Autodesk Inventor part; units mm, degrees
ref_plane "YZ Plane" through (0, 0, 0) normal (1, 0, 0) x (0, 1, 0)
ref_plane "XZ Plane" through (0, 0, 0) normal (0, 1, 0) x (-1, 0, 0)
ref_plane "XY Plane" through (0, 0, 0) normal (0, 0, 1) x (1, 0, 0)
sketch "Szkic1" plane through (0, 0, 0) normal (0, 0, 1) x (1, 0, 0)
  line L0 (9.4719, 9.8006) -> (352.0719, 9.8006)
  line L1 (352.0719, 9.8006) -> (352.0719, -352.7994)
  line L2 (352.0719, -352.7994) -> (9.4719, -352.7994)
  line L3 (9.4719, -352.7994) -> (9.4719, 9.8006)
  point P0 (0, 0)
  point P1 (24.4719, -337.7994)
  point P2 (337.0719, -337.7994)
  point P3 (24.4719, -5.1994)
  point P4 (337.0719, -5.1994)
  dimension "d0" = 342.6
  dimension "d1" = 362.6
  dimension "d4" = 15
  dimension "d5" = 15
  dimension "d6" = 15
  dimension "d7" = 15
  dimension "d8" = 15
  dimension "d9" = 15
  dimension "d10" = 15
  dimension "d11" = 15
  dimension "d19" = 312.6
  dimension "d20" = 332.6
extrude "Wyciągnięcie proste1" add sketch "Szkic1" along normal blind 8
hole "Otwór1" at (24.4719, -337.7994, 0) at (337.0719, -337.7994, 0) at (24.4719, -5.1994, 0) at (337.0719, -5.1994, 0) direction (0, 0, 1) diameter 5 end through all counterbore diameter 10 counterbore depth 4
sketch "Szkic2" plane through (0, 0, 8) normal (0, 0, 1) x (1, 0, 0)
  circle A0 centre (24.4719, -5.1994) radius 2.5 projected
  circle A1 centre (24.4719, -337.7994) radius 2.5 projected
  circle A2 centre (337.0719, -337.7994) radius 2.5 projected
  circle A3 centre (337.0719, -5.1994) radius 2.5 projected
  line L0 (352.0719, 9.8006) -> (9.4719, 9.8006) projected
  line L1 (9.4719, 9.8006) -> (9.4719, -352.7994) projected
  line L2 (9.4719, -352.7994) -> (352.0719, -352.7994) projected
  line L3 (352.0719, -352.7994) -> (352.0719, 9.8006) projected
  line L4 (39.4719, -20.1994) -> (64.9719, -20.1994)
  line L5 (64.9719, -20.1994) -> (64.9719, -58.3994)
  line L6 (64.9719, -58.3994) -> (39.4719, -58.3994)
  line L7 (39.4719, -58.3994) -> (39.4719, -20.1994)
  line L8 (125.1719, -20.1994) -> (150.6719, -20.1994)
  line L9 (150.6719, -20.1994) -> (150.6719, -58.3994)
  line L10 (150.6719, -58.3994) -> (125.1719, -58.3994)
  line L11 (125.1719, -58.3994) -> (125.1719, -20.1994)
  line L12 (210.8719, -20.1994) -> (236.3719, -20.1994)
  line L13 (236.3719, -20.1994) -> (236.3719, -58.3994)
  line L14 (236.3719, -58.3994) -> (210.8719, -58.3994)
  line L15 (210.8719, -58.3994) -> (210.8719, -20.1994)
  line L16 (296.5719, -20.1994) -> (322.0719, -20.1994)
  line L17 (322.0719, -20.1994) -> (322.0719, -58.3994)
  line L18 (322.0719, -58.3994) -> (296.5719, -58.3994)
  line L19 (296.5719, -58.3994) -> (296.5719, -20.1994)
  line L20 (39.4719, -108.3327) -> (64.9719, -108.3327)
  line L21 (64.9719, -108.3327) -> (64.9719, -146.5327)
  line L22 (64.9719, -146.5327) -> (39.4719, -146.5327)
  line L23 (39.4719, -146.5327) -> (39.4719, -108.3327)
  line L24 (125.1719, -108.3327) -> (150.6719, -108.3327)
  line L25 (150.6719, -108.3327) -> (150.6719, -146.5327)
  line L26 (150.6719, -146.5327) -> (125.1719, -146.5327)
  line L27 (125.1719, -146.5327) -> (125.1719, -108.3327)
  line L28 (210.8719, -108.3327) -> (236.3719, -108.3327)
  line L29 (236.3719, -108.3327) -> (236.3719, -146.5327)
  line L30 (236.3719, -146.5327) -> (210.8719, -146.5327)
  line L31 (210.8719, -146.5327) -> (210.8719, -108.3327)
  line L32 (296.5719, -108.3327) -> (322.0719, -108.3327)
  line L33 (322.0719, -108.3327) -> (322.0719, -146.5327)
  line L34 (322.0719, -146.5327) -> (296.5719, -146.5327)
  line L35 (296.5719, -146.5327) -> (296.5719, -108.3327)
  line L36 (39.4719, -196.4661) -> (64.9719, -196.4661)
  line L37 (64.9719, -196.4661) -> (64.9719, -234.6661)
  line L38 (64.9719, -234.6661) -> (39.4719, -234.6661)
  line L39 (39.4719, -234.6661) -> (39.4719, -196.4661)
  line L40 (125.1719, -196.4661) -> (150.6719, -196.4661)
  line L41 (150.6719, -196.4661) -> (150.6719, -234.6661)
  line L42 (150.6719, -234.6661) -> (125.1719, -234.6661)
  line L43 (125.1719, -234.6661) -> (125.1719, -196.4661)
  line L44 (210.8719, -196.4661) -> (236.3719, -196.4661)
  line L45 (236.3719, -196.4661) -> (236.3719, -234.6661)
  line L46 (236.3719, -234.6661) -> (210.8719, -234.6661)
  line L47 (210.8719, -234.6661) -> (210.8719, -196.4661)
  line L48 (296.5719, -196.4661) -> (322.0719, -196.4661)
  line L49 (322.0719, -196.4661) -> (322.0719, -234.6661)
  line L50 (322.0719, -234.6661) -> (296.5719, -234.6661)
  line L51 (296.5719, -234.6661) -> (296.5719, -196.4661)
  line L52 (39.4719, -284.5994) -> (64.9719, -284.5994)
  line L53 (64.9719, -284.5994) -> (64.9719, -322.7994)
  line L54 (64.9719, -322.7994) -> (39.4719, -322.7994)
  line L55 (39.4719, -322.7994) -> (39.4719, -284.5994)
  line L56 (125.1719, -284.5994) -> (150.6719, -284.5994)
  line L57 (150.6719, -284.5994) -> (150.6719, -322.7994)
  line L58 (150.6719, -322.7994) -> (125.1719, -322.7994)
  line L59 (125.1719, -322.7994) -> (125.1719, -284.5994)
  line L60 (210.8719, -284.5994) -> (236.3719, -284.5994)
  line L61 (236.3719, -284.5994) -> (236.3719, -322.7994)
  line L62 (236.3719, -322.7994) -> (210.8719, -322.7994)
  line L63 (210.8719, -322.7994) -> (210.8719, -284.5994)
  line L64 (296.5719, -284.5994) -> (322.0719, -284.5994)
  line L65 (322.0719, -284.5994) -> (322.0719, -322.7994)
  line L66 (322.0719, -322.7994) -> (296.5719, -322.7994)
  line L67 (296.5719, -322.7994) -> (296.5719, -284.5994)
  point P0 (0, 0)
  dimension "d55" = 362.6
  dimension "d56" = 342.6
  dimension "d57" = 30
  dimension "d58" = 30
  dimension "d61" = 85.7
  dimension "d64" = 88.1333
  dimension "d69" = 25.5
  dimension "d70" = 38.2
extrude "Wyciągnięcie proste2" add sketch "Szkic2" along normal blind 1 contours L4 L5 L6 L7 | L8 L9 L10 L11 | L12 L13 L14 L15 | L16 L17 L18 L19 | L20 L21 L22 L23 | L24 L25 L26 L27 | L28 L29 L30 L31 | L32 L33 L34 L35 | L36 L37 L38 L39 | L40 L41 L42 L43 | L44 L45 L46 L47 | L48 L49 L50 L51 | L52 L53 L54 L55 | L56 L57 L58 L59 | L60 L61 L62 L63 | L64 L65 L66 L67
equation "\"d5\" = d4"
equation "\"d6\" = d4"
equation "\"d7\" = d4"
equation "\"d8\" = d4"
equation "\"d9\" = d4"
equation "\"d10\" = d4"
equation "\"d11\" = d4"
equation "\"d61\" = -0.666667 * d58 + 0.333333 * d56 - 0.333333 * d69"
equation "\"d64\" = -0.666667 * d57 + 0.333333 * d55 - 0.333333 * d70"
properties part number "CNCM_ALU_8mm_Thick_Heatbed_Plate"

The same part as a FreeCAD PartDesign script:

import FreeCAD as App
import Part
import Sketcher
from FreeCAD import Vector
Q = App.Units.Quantity

doc = App.newDocument("Part")
body = doc.addObject("PartDesign::Body", "Body")

# Sketch on XY plane
sketch1 = doc.addObject("Sketcher::SketchObject", "Sketch")
body.addObject(sketch1)
sketch1.AttachmentSupport = (doc.XY_Plane, [""])
sketch1.MapMode = "FlatFace"
sketch1.addGeometry([
    Part.LineSegment(Vector(352.0719, 9.8006, 0), Vector(9.4719, 9.8006, 0)),
    Part.LineSegment(Vector(9.4719, 9.8006, 0), Vector(9.4719, -352.7994, 0)),
    Part.LineSegment(Vector(9.4719, -352.7994, 0), Vector(352.0719, -352.7994, 0)),
    Part.LineSegment(Vector(352.0719, -352.7994, 0), Vector(352.0719, 9.8006, 0)),
], False)
sketch1.addConstraint([
    Sketcher.Constraint("Coincident", 0, 2, 1, 1),
    Sketcher.Constraint("Coincident", 1, 2, 2, 1),
    Sketcher.Constraint("Coincident", 2, 2, 3, 1),
    Sketcher.Constraint("Coincident", 3, 2, 0, 1),
    Sketcher.Constraint("Horizontal", 0),
    Sketcher.Constraint("Vertical", 1),
    Sketcher.Constraint("Horizontal", 2),
    Sketcher.Constraint("Vertical", 3),
    Sketcher.Constraint("DistanceX", 0, 2, 0, 1, Q("342.6 mm")),
    Sketcher.Constraint("DistanceY", 1, 2, 1, 1, Q("362.6 mm")),
    Sketcher.Constraint("DistanceX", -1, 1, 0, 2, Q("9.472 mm")),
    Sketcher.Constraint("DistanceY", -1, 1, 0, 2, Q("9.8006 mm")),
])
pad1 = doc.addObject("PartDesign::Pad", "Pad")
body.addObject(pad1)
pad1.Profile = sketch1
pad1.Length = 8

# Sketch on XY plane
sketch2 = doc.addObject("Sketcher::SketchObject", "Sketch001")
body.addObject(sketch2)
sketch2.AttachmentSupport = (doc.XY_Plane, [""])
sketch2.MapMode = "FlatFace"
sketch2.addGeometry([
    Part.Circle(Vector(24.4719, -337.7994, 0), Vector(0, 0, 1), 2.5),
    Part.Circle(Vector(337.0719, -337.7994, 0), Vector(0, 0, 1), 2.5),
    Part.Circle(Vector(24.4719, -5.1994, 0), Vector(0, 0, 1), 2.5),
    Part.Circle(Vector(337.0719, -5.1994, 0), Vector(0, 0, 1), 2.5),
], False)
sketch2.addConstraint([
    Sketcher.Constraint("Equal", 0, 1),
    Sketcher.Constraint("Equal", 1, 2),
    Sketcher.Constraint("Equal", 2, 3),
    Sketcher.Constraint("Horizontal", 0, 3, 1, 3),
    Sketcher.Constraint("Horizontal", 2, 3, 3, 3),
    Sketcher.Constraint("Vertical", 0, 3, 2, 3),
    Sketcher.Constraint("Vertical", 1, 3, 3, 3),
    Sketcher.Constraint("Diameter", 0, Q("5 mm")),
    Sketcher.Constraint("DistanceX", 0, 3, 1, 3, Q("312.6 mm")),
    Sketcher.Constraint("DistanceY", 0, 3, 2, 3, Q("332.6 mm")),
    Sketcher.Constraint("DistanceX", -1, 1, 0, 3, Q("24.472 mm")),
    Sketcher.Constraint("DistanceY", 0, 3, -1, 1, Q("337.7994 mm")),
])
doc.recompute()
hole = doc.addObject("PartDesign::Hole", "Hole")
body.addObject(hole)
hole.Profile = sketch2
hole.ThreadType = "None"
hole.Diameter = 5
hole.DepthType = "ThroughAll"
hole.HoleCutType = "Counterbore"
hole.HoleCutDiameter = 10
hole.HoleCutDepth = 4
hole.Reversed = True

# Sketch on XY plane
sketch3 = doc.addObject("Sketcher::SketchObject", "Sketch002")
body.addObject(sketch3)
sketch3.AttachmentSupport = (doc.XY_Plane, [""])
sketch3.MapMode = "FlatFace"
sketch3.AttachmentOffset = App.Placement(Vector(0, 0, 8), App.Rotation())
sketch3.addGeometry([
    Part.LineSegment(Vector(64.9719, -20.1994, 0), Vector(39.4719, -20.1994, 0)),  # 0
    Part.LineSegment(Vector(39.4719, -20.1994, 0), Vector(39.4719, -58.3994, 0)),  # 1
    Part.LineSegment(Vector(39.4719, -58.3994, 0), Vector(64.9719, -58.3994, 0)),  # 2
    Part.LineSegment(Vector(64.9719, -58.3994, 0), Vector(64.9719, -20.1994, 0)),  # 3
    Part.LineSegment(Vector(150.6719, -20.1994, 0), Vector(125.1719, -20.1994, 0)),  # 4
    Part.LineSegment(Vector(125.1719, -20.1994, 0), Vector(125.1719, -58.3994, 0)),  # 5
    Part.LineSegment(Vector(125.1719, -58.3994, 0), Vector(150.6719, -58.3994, 0)),  # 6
    Part.LineSegment(Vector(150.6719, -58.3994, 0), Vector(150.6719, -20.1994, 0)),  # 7
    Part.LineSegment(Vector(236.3719, -20.1994, 0), Vector(210.8719, -20.1994, 0)),  # 8
    Part.LineSegment(Vector(210.8719, -20.1994, 0), Vector(210.8719, -58.3994, 0)),  # 9
    Part.LineSegment(Vector(210.8719, -58.3994, 0), Vector(236.3719, -58.3994, 0)),  # 10
    Part.LineSegment(Vector(236.3719, -58.3994, 0), Vector(236.3719, -20.1994, 0)),  # 11
    Part.LineSegment(Vector(322.0719, -20.1994, 0), Vector(296.5719, -20.1994, 0)),  # 12
    Part.LineSegment(Vector(296.5719, -20.1994, 0), Vector(296.5719, -58.3994, 0)),  # 13
    Part.LineSegment(Vector(296.5719, -58.3994, 0), Vector(322.0719, -58.3994, 0)),  # 14
    Part.LineSegment(Vector(322.0719, -58.3994, 0), Vector(322.0719, -20.1994, 0)),  # 15
    Part.LineSegment(Vector(64.9719, -108.3327, 0), Vector(39.4719, -108.3327, 0)),  # 16
    Part.LineSegment(Vector(39.4719, -108.3327, 0), Vector(39.4719, -146.5327, 0)),  # 17
    Part.LineSegment(Vector(39.4719, -146.5327, 0), Vector(64.9719, -146.5327, 0)),  # 18
    Part.LineSegment(Vector(64.9719, -146.5327, 0), Vector(64.9719, -108.3327, 0)),  # 19
    Part.LineSegment(Vector(150.6719, -108.3327, 0), Vector(125.1719, -108.3327, 0)),  # 20
    Part.LineSegment(Vector(125.1719, -108.3327, 0), Vector(125.1719, -146.5327, 0)),  # 21
    Part.LineSegment(Vector(125.1719, -146.5327, 0), Vector(150.6719, -146.5327, 0)),  # 22
    Part.LineSegment(Vector(150.6719, -146.5327, 0), Vector(150.6719, -108.3327, 0)),  # 23
    Part.LineSegment(Vector(236.3719, -108.3327, 0), Vector(210.8719, -108.3327, 0)),  # 24
    Part.LineSegment(Vector(210.8719, -108.3327, 0), Vector(210.8719, -146.5327, 0)),  # 25
    Part.LineSegment(Vector(210.8719, -146.5327, 0), Vector(236.3719, -146.5327, 0)),  # 26
    Part.LineSegment(Vector(236.3719, -146.5327, 0), Vector(236.3719, -108.3327, 0)),  # 27
    Part.LineSegment(Vector(322.0719, -108.3327, 0), Vector(296.5719, -108.3327, 0)),  # 28
    Part.LineSegment(Vector(296.5719, -108.3327, 0), Vector(296.5719, -146.5327, 0)),  # 29
    Part.LineSegment(Vector(296.5719, -146.5327, 0), Vector(322.0719, -146.5327, 0)),  # 30
    Part.LineSegment(Vector(322.0719, -146.5327, 0), Vector(322.0719, -108.3327, 0)),  # 31
    Part.LineSegment(Vector(64.9719, -196.4661, 0), Vector(39.4719, -196.4661, 0)),  # 32
    Part.LineSegment(Vector(39.4719, -196.4661, 0), Vector(39.4719, -234.6661, 0)),  # 33
    Part.LineSegment(Vector(39.4719, -234.6661, 0), Vector(64.9719, -234.6661, 0)),  # 34
    Part.LineSegment(Vector(64.9719, -234.6661, 0), Vector(64.9719, -196.4661, 0)),  # 35
    Part.LineSegment(Vector(150.6719, -196.4661, 0), Vector(125.1719, -196.4661, 0)),  # 36
    Part.LineSegment(Vector(125.1719, -196.4661, 0), Vector(125.1719, -234.6661, 0)),  # 37
    Part.LineSegment(Vector(125.1719, -234.6661, 0), Vector(150.6719, -234.6661, 0)),  # 38
    Part.LineSegment(Vector(150.6719, -234.6661, 0), Vector(150.6719, -196.4661, 0)),  # 39
    Part.LineSegment(Vector(236.3719, -196.4661, 0), Vector(210.8719, -196.4661, 0)),  # 40
    Part.LineSegment(Vector(210.8719, -196.4661, 0), Vector(210.8719, -234.6661, 0)),  # 41
    Part.LineSegment(Vector(210.8719, -234.6661, 0), Vector(236.3719, -234.6661, 0)),  # 42
    Part.LineSegment(Vector(236.3719, -234.6661, 0), Vector(236.3719, -196.4661, 0)),  # 43
    Part.LineSegment(Vector(322.0719, -196.4661, 0), Vector(296.5719, -196.4661, 0)),  # 44
    Part.LineSegment(Vector(296.5719, -196.4661, 0), Vector(296.5719, -234.6661, 0)),  # 45
    Part.LineSegment(Vector(296.5719, -234.6661, 0), Vector(322.0719, -234.6661, 0)),  # 46
    Part.LineSegment(Vector(322.0719, -234.6661, 0), Vector(322.0719, -196.4661, 0)),  # 47
    Part.LineSegment(Vector(64.9719, -284.5994, 0), Vector(39.4719, -284.5994, 0)),  # 48
    Part.LineSegment(Vector(39.4719, -284.5994, 0), Vector(39.4719, -322.7994, 0)),  # 49
    Part.LineSegment(Vector(39.4719, -322.7994, 0), Vector(64.9719, -322.7994, 0)),  # 50
    Part.LineSegment(Vector(64.9719, -322.7994, 0), Vector(64.9719, -284.5994, 0)),  # 51
    Part.LineSegment(Vector(150.6719, -284.5994, 0), Vector(125.1719, -284.5994, 0)),  # 52
    Part.LineSegment(Vector(125.1719, -284.5994, 0), Vector(125.1719, -322.7994, 0)),  # 53
    Part.LineSegment(Vector(125.1719, -322.7994, 0), Vector(150.6719, -322.7994, 0)),  # 54
    Part.LineSegment(Vector(150.6719, -322.7994, 0), Vector(150.6719, -284.5994, 0)),  # 55
    Part.LineSegment(Vector(236.3719, -284.5994, 0), Vector(210.8719, -284.5994, 0)),  # 56
    Part.LineSegment(Vector(210.8719, -284.5994, 0), Vector(210.8719, -322.7994, 0)),  # 57
    Part.LineSegment(Vector(210.8719, -322.7994, 0), Vector(236.3719, -322.7994, 0)),  # 58
    Part.LineSegment(Vector(236.3719, -322.7994, 0), Vector(236.3719, -284.5994, 0)),  # 59
    Part.LineSegment(Vector(322.0719, -284.5994, 0), Vector(296.5719, -284.5994, 0)),  # 60
    Part.LineSegment(Vector(296.5719, -284.5994, 0), Vector(296.5719, -322.7994, 0)),  # 61
    Part.LineSegment(Vector(296.5719, -322.7994, 0), Vector(322.0719, -322.7994, 0)),  # 62
    Part.LineSegment(Vector(322.0719, -322.7994, 0), Vector(322.0719, -284.5994, 0)),  # 63
], False)
sketch3.addConstraint([
    Sketcher.Constraint("Coincident", 0, 2, 1, 1),
    Sketcher.Constraint("Coincident", 1, 2, 2, 1),
    Sketcher.Constraint("Coincident", 2, 2, 3, 1),
    Sketcher.Constraint("Coincident", 3, 2, 0, 1),
    Sketcher.Constraint("Coincident", 4, 2, 5, 1),
    Sketcher.Constraint("Coincident", 5, 2, 6, 1),
    Sketcher.Constraint("Coincident", 6, 2, 7, 1),
    Sketcher.Constraint("Coincident", 7, 2, 4, 1),
    Sketcher.Constraint("Coincident", 8, 2, 9, 1),
    Sketcher.Constraint("Coincident", 9, 2, 10, 1),
    Sketcher.Constraint("Coincident", 10, 2, 11, 1),
    Sketcher.Constraint("Coincident", 11, 2, 8, 1),
    Sketcher.Constraint("Coincident", 12, 2, 13, 1),
    Sketcher.Constraint("Coincident", 13, 2, 14, 1),
    Sketcher.Constraint("Coincident", 14, 2, 15, 1),
    Sketcher.Constraint("Coincident", 15, 2, 12, 1),
    Sketcher.Constraint("Coincident", 16, 2, 17, 1),
    Sketcher.Constraint("Coincident", 17, 2, 18, 1),
    Sketcher.Constraint("Coincident", 18, 2, 19, 1),
    Sketcher.Constraint("Coincident", 19, 2, 16, 1),
    Sketcher.Constraint("Coincident", 20, 2, 21, 1),
    Sketcher.Constraint("Coincident", 21, 2, 22, 1),
    Sketcher.Constraint("Coincident", 22, 2, 23, 1),
    Sketcher.Constraint("Coincident", 23, 2, 20, 1),
    Sketcher.Constraint("Coincident", 24, 2, 25, 1),
    Sketcher.Constraint("Coincident", 25, 2, 26, 1),
    Sketcher.Constraint("Coincident", 26, 2, 27, 1),
    Sketcher.Constraint("Coincident", 27, 2, 24, 1),
    Sketcher.Constraint("Coincident", 28, 2, 29, 1),
    Sketcher.Constraint("Coincident", 29, 2, 30, 1),
    Sketcher.Constraint("Coincident", 30, 2, 31, 1),
    Sketcher.Constraint("Coincident", 31, 2, 28, 1),
    Sketcher.Constraint("Coincident", 32, 2, 33, 1),
    Sketcher.Constraint("Coincident", 33, 2, 34, 1),
    Sketcher.Constraint("Coincident", 34, 2, 35, 1),
    Sketcher.Constraint("Coincident", 35, 2, 32, 1),
    Sketcher.Constraint("Coincident", 36, 2, 37, 1),
    Sketcher.Constraint("Coincident", 37, 2, 38, 1),
    Sketcher.Constraint("Coincident", 38, 2, 39, 1),
    Sketcher.Constraint("Coincident", 39, 2, 36, 1),
    Sketcher.Constraint("Coincident", 40, 2, 41, 1),
    Sketcher.Constraint("Coincident", 41, 2, 42, 1),
    Sketcher.Constraint("Coincident", 42, 2, 43, 1),
    Sketcher.Constraint("Coincident", 43, 2, 40, 1),
    Sketcher.Constraint("Coincident", 44, 2, 45, 1),
    Sketcher.Constraint("Coincident", 45, 2, 46, 1),
    Sketcher.Constraint("Coincident", 46, 2, 47, 1),
    Sketcher.Constraint("Coincident", 47, 2, 44, 1),
    Sketcher.Constraint("Coincident", 48, 2, 49, 1),
    Sketcher.Constraint("Coincident", 49, 2, 50, 1),
    Sketcher.Constraint("Coincident", 50, 2, 51, 1),
    Sketcher.Constraint("Coincident", 51, 2, 48, 1),
    Sketcher.Constraint("Coincident", 52, 2, 53, 1),
    Sketcher.Constraint("Coincident", 53, 2, 54, 1),
    Sketcher.Constraint("Coincident", 54, 2, 55, 1),
    Sketcher.Constraint("Coincident", 55, 2, 52, 1),
    Sketcher.Constraint("Coincident", 56, 2, 57, 1),
    Sketcher.Constraint("Coincident", 57, 2, 58, 1),
    Sketcher.Constraint("Coincident", 58, 2, 59, 1),
    Sketcher.Constraint("Coincident", 59, 2, 56, 1),
    Sketcher.Constraint("Coincident", 60, 2, 61, 1),
    Sketcher.Constraint("Coincident", 61, 2, 62, 1),
    Sketcher.Constraint("Coincident", 62, 2, 63, 1),
    Sketcher.Constraint("Coincident", 63, 2, 60, 1),
    Sketcher.Constraint("Horizontal", 0),
    Sketcher.Constraint("Vertical", 1),
    Sketcher.Constraint("Horizontal", 2),
    Sketcher.Constraint("Vertical", 3),
    Sketcher.Constraint("Horizontal", 4),
    Sketcher.Constraint("Vertical", 5),
    Sketcher.Constraint("Horizontal", 6),
    Sketcher.Constraint("Vertical", 7),
    Sketcher.Constraint("Horizontal", 8),
    Sketcher.Constraint("Vertical", 9),
    Sketcher.Constraint("Horizontal", 10),
    Sketcher.Constraint("Vertical", 11),
    Sketcher.Constraint("Horizontal", 12),
    Sketcher.Constraint("Vertical", 13),
    Sketcher.Constraint("Horizontal", 14),
    Sketcher.Constraint("Vertical", 15),
    Sketcher.Constraint("Horizontal", 16),
    Sketcher.Constraint("Vertical", 17),
    Sketcher.Constraint("Horizontal", 18),
    Sketcher.Constraint("Vertical", 19),
    Sketcher.Constraint("Horizontal", 20),
    Sketcher.Constraint("Vertical", 21),
    Sketcher.Constraint("Horizontal", 22),
    Sketcher.Constraint("Vertical", 23),
    Sketcher.Constraint("Horizontal", 24),
    Sketcher.Constraint("Vertical", 25),
    Sketcher.Constraint("Horizontal", 26),
    Sketcher.Constraint("Vertical", 27),
    Sketcher.Constraint("Horizontal", 28),
    Sketcher.Constraint("Vertical", 29),
    Sketcher.Constraint("Horizontal", 30),
    Sketcher.Constraint("Vertical", 31),
    Sketcher.Constraint("Horizontal", 32),
    Sketcher.Constraint("Vertical", 33),
    Sketcher.Constraint("Horizontal", 34),
    Sketcher.Constraint("Vertical", 35),
    Sketcher.Constraint("Horizontal", 36),
    Sketcher.Constraint("Vertical", 37),
    Sketcher.Constraint("Horizontal", 38),
    Sketcher.Constraint("Vertical", 39),
    Sketcher.Constraint("Horizontal", 40),
    Sketcher.Constraint("Vertical", 41),
    Sketcher.Constraint("Horizontal", 42),
    Sketcher.Constraint("Vertical", 43),
    Sketcher.Constraint("Horizontal", 44),
    Sketcher.Constraint("Vertical", 45),
    Sketcher.Constraint("Horizontal", 46),
    Sketcher.Constraint("Vertical", 47),
    Sketcher.Constraint("Horizontal", 48),
    Sketcher.Constraint("Vertical", 49),
    Sketcher.Constraint("Horizontal", 50),
    Sketcher.Constraint("Vertical", 51),
    Sketcher.Constraint("Horizontal", 52),
    Sketcher.Constraint("Vertical", 53),
    Sketcher.Constraint("Horizontal", 54),
    Sketcher.Constraint("Vertical", 55),
    Sketcher.Constraint("Horizontal", 56),
    Sketcher.Constraint("Vertical", 57),
    Sketcher.Constraint("Horizontal", 58),
    Sketcher.Constraint("Vertical", 59),
    Sketcher.Constraint("Horizontal", 60),
    Sketcher.Constraint("Vertical", 61),
    Sketcher.Constraint("Horizontal", 62),
    Sketcher.Constraint("Vertical", 63),
    Sketcher.Constraint("Horizontal", 3, 2, 4, 2),
    Sketcher.Constraint("Horizontal", 2, 2, 5, 2),
    Sketcher.Constraint("Horizontal", 7, 2, 8, 2),
    Sketcher.Constraint("Horizontal", 6, 2, 9, 2),
    Sketcher.Constraint("Horizontal", 11, 2, 12, 2),
    Sketcher.Constraint("Horizontal", 10, 2, 13, 2),
    Sketcher.Constraint("Horizontal", 19, 2, 20, 2),
    Sketcher.Constraint("Horizontal", 18, 2, 21, 2),
    Sketcher.Constraint("Horizontal", 23, 2, 24, 2),
    Sketcher.Constraint("Horizontal", 22, 2, 25, 2),
    Sketcher.Constraint("Horizontal", 27, 2, 28, 2),
    Sketcher.Constraint("Horizontal", 26, 2, 29, 2),
    Sketcher.Constraint("Horizontal", 35, 2, 36, 2),
    Sketcher.Constraint("Horizontal", 34, 2, 37, 2),
    Sketcher.Constraint("Horizontal", 39, 2, 40, 2),
    Sketcher.Constraint("Horizontal", 38, 2, 41, 2),
    Sketcher.Constraint("Horizontal", 43, 2, 44, 2),
    Sketcher.Constraint("Horizontal", 42, 2, 45, 2),
    Sketcher.Constraint("Horizontal", 51, 2, 52, 2),
    Sketcher.Constraint("Horizontal", 50, 2, 53, 2),
    Sketcher.Constraint("Horizontal", 55, 2, 56, 2),
    Sketcher.Constraint("Horizontal", 54, 2, 57, 2),
    Sketcher.Constraint("Horizontal", 59, 2, 60, 2),
    Sketcher.Constraint("Horizontal", 58, 2, 61, 2),
    Sketcher.Constraint("Vertical", 1, 2, 16, 2),
    Sketcher.Constraint("Vertical", 3, 2, 18, 2),
    Sketcher.Constraint("Vertical", 5, 2, 20, 2),
    Sketcher.Constraint("Vertical", 7, 2, 22, 2),
    Sketcher.Constraint("Vertical", 9, 2, 24, 2),
    Sketcher.Constraint("Vertical", 11, 2, 26, 2),
    Sketcher.Constraint("Vertical", 13, 2, 28, 2),
    Sketcher.Constraint("Vertical", 15, 2, 30, 2),
    Sketcher.Constraint("Vertical", 17, 2, 32, 2),
    Sketcher.Constraint("Vertical", 19, 2, 34, 2),
    Sketcher.Constraint("Vertical", 21, 2, 36, 2),
    Sketcher.Constraint("Vertical", 23, 2, 38, 2),
    Sketcher.Constraint("Vertical", 25, 2, 40, 2),
    Sketcher.Constraint("Vertical", 27, 2, 42, 2),
    Sketcher.Constraint("Vertical", 29, 2, 44, 2),
    Sketcher.Constraint("Vertical", 31, 2, 46, 2),
    Sketcher.Constraint("Vertical", 33, 2, 48, 2),
    Sketcher.Constraint("Vertical", 35, 2, 50, 2),
    Sketcher.Constraint("Vertical", 37, 2, 52, 2),
    Sketcher.Constraint("Vertical", 39, 2, 54, 2),
    Sketcher.Constraint("Vertical", 41, 2, 56, 2),
    Sketcher.Constraint("Vertical", 43, 2, 58, 2),
    Sketcher.Constraint("Vertical", 45, 2, 60, 2),
    Sketcher.Constraint("Vertical", 47, 2, 62, 2),
    Sketcher.Constraint("Equal", 2, 4),
    Sketcher.Constraint("Equal", 6, 8),
    Sketcher.Constraint("Equal", 10, 12),
    Sketcher.Constraint("Equal", 15, 17),
    Sketcher.Constraint("Equal", 31, 33),
    Sketcher.Constraint("Equal", 47, 49),
    Sketcher.Constraint("DistanceX", 0, 2, 0, 1, Q("25.5 mm")),
    Sketcher.Constraint("DistanceY", 1, 2, 1, 1, Q("38.2 mm")),
    Sketcher.Constraint("DistanceX", -1, 1, 0, 2, Q("39.472 mm")),
    Sketcher.Constraint("DistanceX", -1, 1, 4, 2, Q("125.172 mm")),
    Sketcher.Constraint("DistanceX", -1, 1, 8, 2, Q("210.872 mm")),
    Sketcher.Constraint("DistanceX", -1, 1, 12, 2, Q("296.572 mm")),
    Sketcher.Constraint("DistanceY", 32, 2, -1, 1, Q("196.466 mm")),
    Sketcher.Constraint("DistanceY", 0, 2, -1, 1, Q("20.1994 mm")),
    Sketcher.Constraint("DistanceY", 16, 2, -1, 1, Q("108.3327 mm")),
    Sketcher.Constraint("DistanceY", 48, 2, -1, 1, Q("284.5994 mm")),
])
pad2 = doc.addObject("PartDesign::Pad", "Pad001")
body.addObject(pad2)
pad2.Profile = sketch3
pad2.Length = 1

doc.recompute()
